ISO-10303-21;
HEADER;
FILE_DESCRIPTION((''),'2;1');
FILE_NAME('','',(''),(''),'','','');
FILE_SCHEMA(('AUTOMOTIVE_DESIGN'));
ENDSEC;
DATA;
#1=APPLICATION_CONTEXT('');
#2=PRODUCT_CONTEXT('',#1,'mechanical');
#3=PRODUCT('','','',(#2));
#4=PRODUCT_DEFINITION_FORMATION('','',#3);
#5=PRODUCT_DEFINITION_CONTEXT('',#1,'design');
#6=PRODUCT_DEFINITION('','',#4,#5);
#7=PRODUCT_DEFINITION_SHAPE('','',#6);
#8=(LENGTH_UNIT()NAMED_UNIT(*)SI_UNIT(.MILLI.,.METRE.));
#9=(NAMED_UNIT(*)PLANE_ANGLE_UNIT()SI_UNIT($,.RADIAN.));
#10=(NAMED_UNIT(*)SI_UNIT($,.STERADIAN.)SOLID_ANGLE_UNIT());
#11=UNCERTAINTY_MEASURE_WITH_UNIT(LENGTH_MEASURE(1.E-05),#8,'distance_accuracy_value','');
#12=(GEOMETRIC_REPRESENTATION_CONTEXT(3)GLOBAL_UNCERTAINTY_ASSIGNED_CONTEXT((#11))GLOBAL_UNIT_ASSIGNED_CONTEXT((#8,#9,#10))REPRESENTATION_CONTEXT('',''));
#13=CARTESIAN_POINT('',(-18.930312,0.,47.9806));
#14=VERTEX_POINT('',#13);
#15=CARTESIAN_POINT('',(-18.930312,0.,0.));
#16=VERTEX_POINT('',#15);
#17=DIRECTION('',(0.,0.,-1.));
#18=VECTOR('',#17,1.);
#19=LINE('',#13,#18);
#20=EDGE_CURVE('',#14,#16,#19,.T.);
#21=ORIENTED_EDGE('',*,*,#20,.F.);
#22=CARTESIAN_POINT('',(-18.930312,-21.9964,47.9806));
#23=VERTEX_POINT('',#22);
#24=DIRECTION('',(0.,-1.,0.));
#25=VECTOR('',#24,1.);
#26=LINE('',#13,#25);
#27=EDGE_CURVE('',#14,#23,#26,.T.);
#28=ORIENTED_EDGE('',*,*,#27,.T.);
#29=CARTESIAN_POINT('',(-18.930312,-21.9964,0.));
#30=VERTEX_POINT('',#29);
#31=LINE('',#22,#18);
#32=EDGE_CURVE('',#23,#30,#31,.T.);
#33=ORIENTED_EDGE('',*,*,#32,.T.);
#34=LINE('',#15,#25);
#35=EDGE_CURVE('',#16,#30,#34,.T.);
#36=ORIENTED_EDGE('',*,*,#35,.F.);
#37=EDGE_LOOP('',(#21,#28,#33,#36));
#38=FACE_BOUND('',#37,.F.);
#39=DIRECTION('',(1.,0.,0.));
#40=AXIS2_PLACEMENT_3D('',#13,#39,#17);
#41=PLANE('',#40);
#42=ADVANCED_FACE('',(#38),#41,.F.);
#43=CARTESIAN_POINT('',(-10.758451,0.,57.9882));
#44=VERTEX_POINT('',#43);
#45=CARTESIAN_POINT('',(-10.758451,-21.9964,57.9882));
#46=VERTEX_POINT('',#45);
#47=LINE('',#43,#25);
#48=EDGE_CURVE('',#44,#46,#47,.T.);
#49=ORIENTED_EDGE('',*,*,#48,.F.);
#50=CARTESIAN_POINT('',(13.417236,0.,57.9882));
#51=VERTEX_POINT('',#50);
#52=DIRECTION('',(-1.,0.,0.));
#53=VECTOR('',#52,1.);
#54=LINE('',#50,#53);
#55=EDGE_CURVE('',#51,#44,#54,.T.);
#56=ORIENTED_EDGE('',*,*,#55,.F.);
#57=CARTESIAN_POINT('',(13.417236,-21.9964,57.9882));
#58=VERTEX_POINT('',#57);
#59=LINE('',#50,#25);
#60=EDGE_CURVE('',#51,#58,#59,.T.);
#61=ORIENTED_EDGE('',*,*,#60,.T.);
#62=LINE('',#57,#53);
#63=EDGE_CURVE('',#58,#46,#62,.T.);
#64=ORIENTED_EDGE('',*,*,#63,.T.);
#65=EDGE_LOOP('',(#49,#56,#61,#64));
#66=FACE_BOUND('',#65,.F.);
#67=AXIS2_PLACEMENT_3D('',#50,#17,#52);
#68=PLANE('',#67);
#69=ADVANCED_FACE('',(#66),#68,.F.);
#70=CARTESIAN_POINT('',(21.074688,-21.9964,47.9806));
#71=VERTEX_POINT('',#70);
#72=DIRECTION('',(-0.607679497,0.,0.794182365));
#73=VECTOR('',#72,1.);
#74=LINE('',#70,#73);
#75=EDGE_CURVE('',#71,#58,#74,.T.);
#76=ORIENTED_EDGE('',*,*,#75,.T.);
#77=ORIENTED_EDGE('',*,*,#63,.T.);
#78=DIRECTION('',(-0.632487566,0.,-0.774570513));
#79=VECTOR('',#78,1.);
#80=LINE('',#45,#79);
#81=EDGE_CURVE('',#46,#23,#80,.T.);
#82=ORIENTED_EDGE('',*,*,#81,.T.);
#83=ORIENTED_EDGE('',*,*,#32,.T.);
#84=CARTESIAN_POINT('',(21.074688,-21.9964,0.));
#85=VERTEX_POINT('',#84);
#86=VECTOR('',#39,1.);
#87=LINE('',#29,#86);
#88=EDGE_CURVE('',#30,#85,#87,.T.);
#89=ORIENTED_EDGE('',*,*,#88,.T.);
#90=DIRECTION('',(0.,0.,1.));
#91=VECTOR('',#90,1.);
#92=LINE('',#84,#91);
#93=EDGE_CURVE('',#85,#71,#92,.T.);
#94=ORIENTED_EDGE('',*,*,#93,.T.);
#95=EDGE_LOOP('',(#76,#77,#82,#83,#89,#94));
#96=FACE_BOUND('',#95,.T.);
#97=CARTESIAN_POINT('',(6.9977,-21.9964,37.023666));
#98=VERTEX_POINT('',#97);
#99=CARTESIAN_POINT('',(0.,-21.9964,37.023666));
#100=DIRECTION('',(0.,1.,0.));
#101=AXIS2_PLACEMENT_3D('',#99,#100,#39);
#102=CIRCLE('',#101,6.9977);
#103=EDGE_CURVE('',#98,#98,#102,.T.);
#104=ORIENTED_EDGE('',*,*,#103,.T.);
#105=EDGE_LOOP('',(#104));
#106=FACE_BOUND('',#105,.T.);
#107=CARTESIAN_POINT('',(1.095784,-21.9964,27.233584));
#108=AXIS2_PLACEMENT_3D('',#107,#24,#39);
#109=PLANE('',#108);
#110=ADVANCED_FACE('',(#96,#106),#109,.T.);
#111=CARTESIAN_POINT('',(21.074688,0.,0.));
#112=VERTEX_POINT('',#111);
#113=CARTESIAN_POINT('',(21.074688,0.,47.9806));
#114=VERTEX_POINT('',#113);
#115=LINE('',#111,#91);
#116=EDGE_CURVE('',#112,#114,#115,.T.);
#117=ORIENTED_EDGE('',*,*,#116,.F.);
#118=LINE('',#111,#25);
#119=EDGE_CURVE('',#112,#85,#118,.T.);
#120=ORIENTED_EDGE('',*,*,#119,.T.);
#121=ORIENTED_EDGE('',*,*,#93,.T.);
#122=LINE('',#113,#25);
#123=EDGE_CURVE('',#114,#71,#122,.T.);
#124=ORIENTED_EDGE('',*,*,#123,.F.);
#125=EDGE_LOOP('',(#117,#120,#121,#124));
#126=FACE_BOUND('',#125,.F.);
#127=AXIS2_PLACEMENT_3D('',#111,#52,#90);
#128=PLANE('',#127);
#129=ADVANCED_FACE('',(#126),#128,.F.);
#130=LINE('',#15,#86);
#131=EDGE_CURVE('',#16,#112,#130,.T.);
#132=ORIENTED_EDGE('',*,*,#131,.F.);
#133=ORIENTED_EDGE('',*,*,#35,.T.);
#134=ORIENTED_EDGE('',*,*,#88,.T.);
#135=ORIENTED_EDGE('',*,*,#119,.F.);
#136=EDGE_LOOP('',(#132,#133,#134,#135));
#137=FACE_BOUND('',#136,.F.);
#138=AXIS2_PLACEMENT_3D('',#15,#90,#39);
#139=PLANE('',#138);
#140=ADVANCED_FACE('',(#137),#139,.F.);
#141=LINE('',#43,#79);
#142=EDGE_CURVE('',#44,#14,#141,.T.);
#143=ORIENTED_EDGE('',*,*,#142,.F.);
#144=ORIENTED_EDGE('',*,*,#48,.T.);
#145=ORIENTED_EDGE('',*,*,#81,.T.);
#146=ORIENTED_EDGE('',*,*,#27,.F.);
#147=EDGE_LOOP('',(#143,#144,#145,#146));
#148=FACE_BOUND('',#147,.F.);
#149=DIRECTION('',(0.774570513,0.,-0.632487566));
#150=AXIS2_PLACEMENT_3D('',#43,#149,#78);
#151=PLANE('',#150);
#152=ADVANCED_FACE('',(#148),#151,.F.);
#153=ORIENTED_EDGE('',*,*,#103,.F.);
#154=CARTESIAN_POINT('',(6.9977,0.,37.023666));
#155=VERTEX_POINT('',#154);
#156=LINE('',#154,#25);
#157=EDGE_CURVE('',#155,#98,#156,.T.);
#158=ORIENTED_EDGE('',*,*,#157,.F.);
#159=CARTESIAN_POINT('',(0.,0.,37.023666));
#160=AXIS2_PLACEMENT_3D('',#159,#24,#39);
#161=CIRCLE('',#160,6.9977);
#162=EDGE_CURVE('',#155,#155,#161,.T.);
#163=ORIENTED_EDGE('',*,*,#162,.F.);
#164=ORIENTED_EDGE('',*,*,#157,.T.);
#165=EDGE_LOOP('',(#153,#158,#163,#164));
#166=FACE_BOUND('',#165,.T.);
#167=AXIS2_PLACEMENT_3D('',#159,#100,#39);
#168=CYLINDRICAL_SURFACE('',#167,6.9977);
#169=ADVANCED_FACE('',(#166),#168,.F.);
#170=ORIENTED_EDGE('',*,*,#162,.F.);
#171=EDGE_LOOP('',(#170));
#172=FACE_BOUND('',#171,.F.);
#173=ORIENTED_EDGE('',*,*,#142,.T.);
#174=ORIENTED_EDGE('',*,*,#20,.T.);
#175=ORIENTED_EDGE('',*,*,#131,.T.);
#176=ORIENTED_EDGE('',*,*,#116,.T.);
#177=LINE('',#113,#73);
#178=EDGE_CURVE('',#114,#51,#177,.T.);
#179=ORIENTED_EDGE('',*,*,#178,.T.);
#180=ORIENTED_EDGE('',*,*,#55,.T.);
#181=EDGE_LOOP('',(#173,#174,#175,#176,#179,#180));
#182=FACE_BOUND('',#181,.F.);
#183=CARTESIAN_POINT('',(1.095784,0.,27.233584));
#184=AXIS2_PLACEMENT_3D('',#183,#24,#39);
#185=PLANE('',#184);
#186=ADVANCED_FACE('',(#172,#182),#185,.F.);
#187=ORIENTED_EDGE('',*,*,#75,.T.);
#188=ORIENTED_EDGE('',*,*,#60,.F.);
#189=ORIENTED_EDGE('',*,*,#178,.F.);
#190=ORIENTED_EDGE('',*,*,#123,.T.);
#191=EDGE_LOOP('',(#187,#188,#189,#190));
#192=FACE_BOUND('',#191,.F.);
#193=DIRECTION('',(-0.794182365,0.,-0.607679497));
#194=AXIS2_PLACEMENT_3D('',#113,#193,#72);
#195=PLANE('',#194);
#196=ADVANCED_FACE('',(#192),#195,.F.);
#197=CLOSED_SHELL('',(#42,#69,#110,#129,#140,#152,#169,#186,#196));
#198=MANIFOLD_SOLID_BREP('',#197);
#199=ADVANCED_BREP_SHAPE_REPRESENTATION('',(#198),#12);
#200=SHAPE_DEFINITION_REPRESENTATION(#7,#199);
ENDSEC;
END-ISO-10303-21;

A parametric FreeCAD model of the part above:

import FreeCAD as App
import Part
import Sketcher
Q = App.Units.Quantity

doc = App.newDocument("Part")
body = doc.addObject("PartDesign::Body", "Body")

sketch1 = body.newObject("Sketcher::SketchObject", "Sketch")
sketch1.AttachmentSupport = (doc.getObject("XZ_Plane"), [""])
sketch1.MapMode = "FlatFace"
sketch1.addGeometry(Part.LineSegment(App.Vector(-18.930312, 47.9806, 0), App.Vector(-18.930312, 0, 0)), False)
sketch1.addGeometry(Part.LineSegment(App.Vector(-18.930312, 0, 0), App.Vector(21.074688, 0, 0)), False)
sketch1.addGeometry(Part.LineSegment(App.Vector(21.074688, 0, 0), App.Vector(21.074688, 47.9806, 0)), False)
sketch1.addGeometry(Part.LineSegment(App.Vector(21.074688, 47.9806, 0), App.Vector(13.417236, 57.9882, 0)), False)
sketch1.addGeometry(Part.LineSegment(App.Vector(13.417236, 57.9882, 0), App.Vector(-10.758451, 57.9882, 0)), False)
sketch1.addGeometry(Part.LineSegment(App.Vector(-10.758451, 57.9882, 0), App.Vector(-18.930312, 47.9806, 0)), False)
sketch1.addConstraint(Sketcher.Constraint("Coincident", 0, 2, 1, 1))
sketch1.addConstraint(Sketcher.Constraint("Coincident", 1, 2, 2, 1))
sketch1.addConstraint(Sketcher.Constraint("Coincident", 2, 2, 3, 1))
sketch1.addConstraint(Sketcher.Constraint("Coincident", 3, 2, 4, 1))
sketch1.addConstraint(Sketcher.Constraint("Coincident", 4, 2, 5, 1))
sketch1.addConstraint(Sketcher.Constraint("Coincident", 5, 2, 0, 1))
sketch1.addConstraint(Sketcher.Constraint("Vertical", 0))
sketch1.addConstraint(Sketcher.Constraint("Horizontal", 1))
sketch1.addConstraint(Sketcher.Constraint("Vertical", 2))
sketch1.addConstraint(Sketcher.Constraint("Horizontal", 4))
sketch1.addConstraint(Sketcher.Constraint("PointOnObject", 0, 2, -1))
sketch1.addConstraint(Sketcher.Constraint("Horizontal", 2, 2, 5, 2))
sketch1.addConstraint(Sketcher.Constraint("DistanceX", 1, 1, 1, 2, Q("1.575 in")))
sketch1.addConstraint(Sketcher.Constraint("DistanceY", 0, 2, 0, 1, Q("1.889 in")))
sketch1.addConstraint(Sketcher.Constraint("DistanceY", -1, 1, 3, 2, Q("2.283 in")))
sketch1.addConstraint(Sketcher.Constraint("DistanceX", 4, 2, 4, 1, 24.175687))
sketch1.addConstraint(Sketcher.Constraint("DistanceX", 4, 2, -1, 1, 10.758451))
sketch1.addConstraint(Sketcher.Constraint("DistanceX", 3, 2, 2, 2, 7.657452))
pad1 = body.newObject("PartDesign::Pad", "Pad")
pad1.Profile = sketch1
pad1.Length = Q("0.866 in")

sketch2 = body.newObject("Sketcher::SketchObject", "Sketch001")
sketch2.AttachmentSupport = (doc.getObject("XZ_Plane"), [""])
sketch2.MapMode = "FlatFace"
sketch2.addGeometry(Part.Circle(App.Vector(0, 37.023666, 0), App.Vector(0, 0, 1), 6.9977), False)
sketch2.addConstraint(Sketcher.Constraint("PointOnObject", 0, 3, -2))
sketch2.addConstraint(Sketcher.Constraint("Diameter", 0, Q("0.551 in")))
sketch2.addConstraint(Sketcher.Constraint("DistanceY", -1, 1, 0, 3, 37.023666))
pocket1 = body.newObject("PartDesign::Pocket", "Pocket")
pocket1.Profile = sketch2
pocket1.Length = Q("2.25 in")
pocket1.Reversed = True

doc.recompute()
